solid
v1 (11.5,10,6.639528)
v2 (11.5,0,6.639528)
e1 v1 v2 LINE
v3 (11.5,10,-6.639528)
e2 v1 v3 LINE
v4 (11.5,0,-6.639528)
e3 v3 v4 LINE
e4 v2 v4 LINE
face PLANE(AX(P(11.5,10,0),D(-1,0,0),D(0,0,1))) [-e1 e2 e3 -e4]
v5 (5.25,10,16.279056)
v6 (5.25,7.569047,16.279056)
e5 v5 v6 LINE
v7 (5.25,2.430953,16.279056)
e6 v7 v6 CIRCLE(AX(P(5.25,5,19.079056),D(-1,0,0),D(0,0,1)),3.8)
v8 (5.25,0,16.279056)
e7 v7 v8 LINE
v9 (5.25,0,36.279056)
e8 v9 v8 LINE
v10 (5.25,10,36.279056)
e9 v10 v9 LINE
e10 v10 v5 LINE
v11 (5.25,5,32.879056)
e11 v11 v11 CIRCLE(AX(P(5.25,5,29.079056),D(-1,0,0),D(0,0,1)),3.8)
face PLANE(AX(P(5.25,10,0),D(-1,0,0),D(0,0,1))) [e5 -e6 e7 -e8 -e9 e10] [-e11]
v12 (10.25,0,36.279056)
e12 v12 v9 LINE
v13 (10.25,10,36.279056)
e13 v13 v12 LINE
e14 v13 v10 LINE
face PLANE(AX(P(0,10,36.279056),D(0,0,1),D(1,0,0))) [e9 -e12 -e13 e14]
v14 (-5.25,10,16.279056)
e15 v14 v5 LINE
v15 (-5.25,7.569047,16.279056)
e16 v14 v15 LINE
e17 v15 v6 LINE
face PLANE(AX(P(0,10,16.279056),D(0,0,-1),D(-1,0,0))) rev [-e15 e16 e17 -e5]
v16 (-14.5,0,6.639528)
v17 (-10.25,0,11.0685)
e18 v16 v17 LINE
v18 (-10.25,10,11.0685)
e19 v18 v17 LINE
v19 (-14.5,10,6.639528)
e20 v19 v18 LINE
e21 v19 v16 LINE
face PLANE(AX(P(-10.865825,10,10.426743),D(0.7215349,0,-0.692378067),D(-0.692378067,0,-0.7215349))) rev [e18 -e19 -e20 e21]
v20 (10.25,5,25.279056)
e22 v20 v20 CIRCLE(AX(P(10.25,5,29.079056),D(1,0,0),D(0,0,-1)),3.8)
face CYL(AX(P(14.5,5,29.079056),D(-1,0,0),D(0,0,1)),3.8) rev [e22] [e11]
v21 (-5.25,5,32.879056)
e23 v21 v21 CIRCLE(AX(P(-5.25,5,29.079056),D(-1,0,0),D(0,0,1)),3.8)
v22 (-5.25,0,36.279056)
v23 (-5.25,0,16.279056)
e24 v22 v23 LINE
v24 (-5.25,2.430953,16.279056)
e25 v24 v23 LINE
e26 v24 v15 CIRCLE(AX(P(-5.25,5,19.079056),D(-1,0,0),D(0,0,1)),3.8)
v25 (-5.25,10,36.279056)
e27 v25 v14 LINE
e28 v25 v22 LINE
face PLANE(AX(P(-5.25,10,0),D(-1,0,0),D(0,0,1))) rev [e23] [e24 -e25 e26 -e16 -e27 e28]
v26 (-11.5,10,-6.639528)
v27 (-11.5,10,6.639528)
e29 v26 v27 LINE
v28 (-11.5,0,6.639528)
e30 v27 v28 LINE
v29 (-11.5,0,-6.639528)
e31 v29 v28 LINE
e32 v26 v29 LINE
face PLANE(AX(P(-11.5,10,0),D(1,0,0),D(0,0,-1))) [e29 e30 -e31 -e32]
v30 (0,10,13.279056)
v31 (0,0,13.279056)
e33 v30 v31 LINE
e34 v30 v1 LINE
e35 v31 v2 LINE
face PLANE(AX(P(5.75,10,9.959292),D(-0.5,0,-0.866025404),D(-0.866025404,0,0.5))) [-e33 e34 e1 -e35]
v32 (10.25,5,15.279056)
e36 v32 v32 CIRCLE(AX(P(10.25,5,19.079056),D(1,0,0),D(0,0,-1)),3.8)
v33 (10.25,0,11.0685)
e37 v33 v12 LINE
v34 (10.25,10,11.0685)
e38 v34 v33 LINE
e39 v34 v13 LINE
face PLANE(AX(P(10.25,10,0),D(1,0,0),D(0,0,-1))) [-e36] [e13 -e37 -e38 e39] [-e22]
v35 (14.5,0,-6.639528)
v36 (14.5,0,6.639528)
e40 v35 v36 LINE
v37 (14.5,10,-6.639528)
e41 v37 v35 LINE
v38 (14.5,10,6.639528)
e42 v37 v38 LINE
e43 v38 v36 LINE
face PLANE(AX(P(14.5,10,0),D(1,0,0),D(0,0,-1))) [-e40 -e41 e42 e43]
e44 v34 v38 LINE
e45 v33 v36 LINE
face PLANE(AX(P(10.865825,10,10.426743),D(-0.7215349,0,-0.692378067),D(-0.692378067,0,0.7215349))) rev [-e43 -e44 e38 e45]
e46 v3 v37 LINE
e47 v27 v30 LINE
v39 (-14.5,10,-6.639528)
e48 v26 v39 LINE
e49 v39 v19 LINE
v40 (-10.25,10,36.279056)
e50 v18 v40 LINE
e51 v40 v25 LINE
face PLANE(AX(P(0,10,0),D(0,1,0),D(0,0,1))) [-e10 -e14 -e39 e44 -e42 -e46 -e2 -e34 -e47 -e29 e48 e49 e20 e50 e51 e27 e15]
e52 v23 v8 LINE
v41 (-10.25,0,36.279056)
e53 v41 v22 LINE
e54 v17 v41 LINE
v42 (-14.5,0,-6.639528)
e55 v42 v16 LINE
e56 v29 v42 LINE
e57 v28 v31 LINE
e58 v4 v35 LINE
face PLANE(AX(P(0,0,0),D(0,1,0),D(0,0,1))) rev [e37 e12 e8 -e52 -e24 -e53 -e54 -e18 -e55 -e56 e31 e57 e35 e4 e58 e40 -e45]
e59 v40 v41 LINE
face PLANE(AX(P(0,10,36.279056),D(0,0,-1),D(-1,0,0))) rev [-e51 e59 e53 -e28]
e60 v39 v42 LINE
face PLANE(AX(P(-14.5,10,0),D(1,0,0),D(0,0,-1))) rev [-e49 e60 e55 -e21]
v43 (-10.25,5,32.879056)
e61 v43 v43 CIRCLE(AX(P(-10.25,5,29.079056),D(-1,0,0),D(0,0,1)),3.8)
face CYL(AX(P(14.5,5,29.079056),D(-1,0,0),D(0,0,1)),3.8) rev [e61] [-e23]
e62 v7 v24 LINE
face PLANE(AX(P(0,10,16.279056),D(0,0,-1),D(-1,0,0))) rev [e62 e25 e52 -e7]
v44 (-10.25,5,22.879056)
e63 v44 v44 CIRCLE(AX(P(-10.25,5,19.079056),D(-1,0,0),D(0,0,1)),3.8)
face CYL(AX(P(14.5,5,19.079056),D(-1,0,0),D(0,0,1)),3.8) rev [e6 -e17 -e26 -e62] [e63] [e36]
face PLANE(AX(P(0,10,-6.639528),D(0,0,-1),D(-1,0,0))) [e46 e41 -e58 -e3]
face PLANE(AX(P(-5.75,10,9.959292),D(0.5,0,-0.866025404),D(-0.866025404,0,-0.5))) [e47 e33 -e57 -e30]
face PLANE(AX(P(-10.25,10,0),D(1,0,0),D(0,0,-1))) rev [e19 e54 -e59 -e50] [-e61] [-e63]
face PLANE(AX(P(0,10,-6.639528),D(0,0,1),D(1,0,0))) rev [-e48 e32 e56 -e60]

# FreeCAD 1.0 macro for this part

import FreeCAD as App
import Part
import Sketcher
from FreeCAD import Vector
Q = App.Units.Quantity


def add_polygon(sketch, points):
    """Adds a closed chain of lines whose ends are joined by coincident constraints."""
    first, n = sketch.GeometryCount, len(points)
    for a, b in zip(points, points[1:] + points[:1]):
        sketch.addGeometry(Part.LineSegment(App.Vector(*a, 0), App.Vector(*b, 0)), False)
    for i in range(n):
        sketch.addConstraint(Sketcher.Constraint("Coincident", first + i, 2, first + (i + 1) % n, 1))

doc = App.newDocument("Part")
body = doc.addObject("PartDesign::Body", "Body")

# Sketch on XZ plane
sketch1 = body.newObject("Sketcher::SketchObject", "Sketch")
sketch1.AttachmentSupport = (doc.getObject("XZ_Plane"), [""])
sketch1.MapMode = "FlatFace"
add_polygon(sketch1, [(-11.5, 6.6), (-11.5, -6.6), (-14.5, -6.6), (-14.5, 6.6), (-10.2, 11.1), (-10.2, 36.3), (-5.2, 36.3), (-5.2, 16.3), (5.2, 16.3), (5.2, 36.3), (10.2, 36.3), (10.2, 11.1), (14.5, 6.6), (14.5, -6.6), (11.5, -6.6), (11.5, 6.6), (0, 13.3)])  # lines 0-16
sketch1.addConstraint(Sketcher.Constraint("Vertical", 0))
sketch1.addConstraint(Sketcher.Constraint("Horizontal", 1))
sketch1.addConstraint(Sketcher.Constraint("Vertical", 2))
sketch1.addConstraint(Sketcher.Constraint("Vertical", 4))
sketch1.addConstraint(Sketcher.Constraint("Horizontal", 5))
sketch1.addConstraint(Sketcher.Constraint("Vertical", 6))
sketch1.addConstraint(Sketcher.Constraint("Horizontal", 7))
sketch1.addConstraint(Sketcher.Constraint("Vertical", 8))
sketch1.addConstraint(Sketcher.Constraint("Horizontal", 9))
sketch1.addConstraint(Sketcher.Constraint("Vertical", 10))
sketch1.addConstraint(Sketcher.Constraint("Vertical", 12))
sketch1.addConstraint(Sketcher.Constraint("Horizontal", 13))
sketch1.addConstraint(Sketcher.Constraint("Vertical", 14))
sketch1.addConstraint(Sketcher.Constraint("Symmetric", 1, 2, 11, 2, -1, 1))
sketch1.addConstraint(Sketcher.Constraint("Symmetric", 0, 2, 14, 2, -1, 1))
sketch1.addConstraint(Sketcher.Constraint("Symmetric", 5, 2, 8, 2, -2))
sketch1.addConstraint(Sketcher.Constraint("Symmetric", 3, 2, 10, 2, -2))
sketch1.addConstraint(Sketcher.Constraint("PointOnObject", 15, 2, -2))
sketch1.addConstraint(Sketcher.Constraint("Horizontal", 2, 2, 11, 2))
sketch1.addConstraint(Sketcher.Constraint("Horizontal", 1, 2, 12, 2))
sketch1.addConstraint(Sketcher.Constraint("Horizontal", 14, 2, 16, 2))
sketch1.addConstraint(Sketcher.Constraint("DistanceX", 1, 2, 1, 1, Q("3 mm")))
sketch1.addConstraint(Sketcher.Constraint("DistanceX", 5, 1, 5, 2, Q("5 mm")))
sketch1.addConstraint(Sketcher.Constraint("DistanceY", 6, 2, 6, 1, Q("20 mm")))
sketch1.addConstraint(Sketcher.Constraint("Angle", 15, Q("150 deg")))
sketch1.addConstraint(Sketcher.Constraint("DistanceX", 7, 1, 7, 2, Q("10.5 mm")))
sketch1.addConstraint(Sketcher.Constraint("DistanceX", 2, 2, 11, 2, Q("29 mm")))
sketch1.addConstraint(Sketcher.Constraint("DistanceY", 15, 2, 6, 2, Q("3 mm")))
sketch1.addConstraint(Sketcher.Constraint("DistanceY", -1, 1, 3, 2, Q("11.0685 mm")))
sketch1.addConstraint(Sketcher.Constraint("DistanceY", 0, 2, 0, 1, Q("13.279056 mm")))
pad1 = body.newObject("PartDesign::Pad", "Pad")
pad1.Profile = sketch1
pad1.Length = 10
pad1.Reversed = True

# Sketch on YZ plane
sketch2 = body.newObject("Sketcher::SketchObject", "Sketch001")
sketch2.AttachmentSupport = (doc.getObject("YZ_Plane"), [""])
sketch2.MapMode = "FlatFace"
sketch2.AttachmentOffset = App.Placement(Vector(0, 0, -10.25), App.Rotation())
sketch2.addGeometry(Part.Circle(Vector(5, 19.1, 0), Vector(0, 0, 1), 3.8), False)
sketch2.addGeometry(Part.Circle(Vector(5, 29.1, 0), Vector(0, 0, 1), 3.8), False)
sketch2.addConstraint(Sketcher.Constraint("Equal", 0, 1))
sketch2.addConstraint(Sketcher.Constraint("Vertical", 0, 3, 1, 3))
sketch2.addConstraint(Sketcher.Constraint("Diameter", 0, Q("7.6 mm")))
sketch2.addConstraint(Sketcher.Constraint("DistanceX", -1, 1, 0, 3, Q("5 mm")))
sketch2.addConstraint(Sketcher.Constraint("DistanceY", 0, 3, 1, 3, Q("10 mm")))
sketch2.addConstraint(Sketcher.Constraint("DistanceY", -1, 1, 0, 3, Q("19.079056 mm")))
pocket1 = body.newObject("PartDesign::Pocket", "Pocket")
pocket1.Profile = sketch2
pocket1.Type = "ThroughAll"
pocket1.Reversed = True

doc.recompute()
